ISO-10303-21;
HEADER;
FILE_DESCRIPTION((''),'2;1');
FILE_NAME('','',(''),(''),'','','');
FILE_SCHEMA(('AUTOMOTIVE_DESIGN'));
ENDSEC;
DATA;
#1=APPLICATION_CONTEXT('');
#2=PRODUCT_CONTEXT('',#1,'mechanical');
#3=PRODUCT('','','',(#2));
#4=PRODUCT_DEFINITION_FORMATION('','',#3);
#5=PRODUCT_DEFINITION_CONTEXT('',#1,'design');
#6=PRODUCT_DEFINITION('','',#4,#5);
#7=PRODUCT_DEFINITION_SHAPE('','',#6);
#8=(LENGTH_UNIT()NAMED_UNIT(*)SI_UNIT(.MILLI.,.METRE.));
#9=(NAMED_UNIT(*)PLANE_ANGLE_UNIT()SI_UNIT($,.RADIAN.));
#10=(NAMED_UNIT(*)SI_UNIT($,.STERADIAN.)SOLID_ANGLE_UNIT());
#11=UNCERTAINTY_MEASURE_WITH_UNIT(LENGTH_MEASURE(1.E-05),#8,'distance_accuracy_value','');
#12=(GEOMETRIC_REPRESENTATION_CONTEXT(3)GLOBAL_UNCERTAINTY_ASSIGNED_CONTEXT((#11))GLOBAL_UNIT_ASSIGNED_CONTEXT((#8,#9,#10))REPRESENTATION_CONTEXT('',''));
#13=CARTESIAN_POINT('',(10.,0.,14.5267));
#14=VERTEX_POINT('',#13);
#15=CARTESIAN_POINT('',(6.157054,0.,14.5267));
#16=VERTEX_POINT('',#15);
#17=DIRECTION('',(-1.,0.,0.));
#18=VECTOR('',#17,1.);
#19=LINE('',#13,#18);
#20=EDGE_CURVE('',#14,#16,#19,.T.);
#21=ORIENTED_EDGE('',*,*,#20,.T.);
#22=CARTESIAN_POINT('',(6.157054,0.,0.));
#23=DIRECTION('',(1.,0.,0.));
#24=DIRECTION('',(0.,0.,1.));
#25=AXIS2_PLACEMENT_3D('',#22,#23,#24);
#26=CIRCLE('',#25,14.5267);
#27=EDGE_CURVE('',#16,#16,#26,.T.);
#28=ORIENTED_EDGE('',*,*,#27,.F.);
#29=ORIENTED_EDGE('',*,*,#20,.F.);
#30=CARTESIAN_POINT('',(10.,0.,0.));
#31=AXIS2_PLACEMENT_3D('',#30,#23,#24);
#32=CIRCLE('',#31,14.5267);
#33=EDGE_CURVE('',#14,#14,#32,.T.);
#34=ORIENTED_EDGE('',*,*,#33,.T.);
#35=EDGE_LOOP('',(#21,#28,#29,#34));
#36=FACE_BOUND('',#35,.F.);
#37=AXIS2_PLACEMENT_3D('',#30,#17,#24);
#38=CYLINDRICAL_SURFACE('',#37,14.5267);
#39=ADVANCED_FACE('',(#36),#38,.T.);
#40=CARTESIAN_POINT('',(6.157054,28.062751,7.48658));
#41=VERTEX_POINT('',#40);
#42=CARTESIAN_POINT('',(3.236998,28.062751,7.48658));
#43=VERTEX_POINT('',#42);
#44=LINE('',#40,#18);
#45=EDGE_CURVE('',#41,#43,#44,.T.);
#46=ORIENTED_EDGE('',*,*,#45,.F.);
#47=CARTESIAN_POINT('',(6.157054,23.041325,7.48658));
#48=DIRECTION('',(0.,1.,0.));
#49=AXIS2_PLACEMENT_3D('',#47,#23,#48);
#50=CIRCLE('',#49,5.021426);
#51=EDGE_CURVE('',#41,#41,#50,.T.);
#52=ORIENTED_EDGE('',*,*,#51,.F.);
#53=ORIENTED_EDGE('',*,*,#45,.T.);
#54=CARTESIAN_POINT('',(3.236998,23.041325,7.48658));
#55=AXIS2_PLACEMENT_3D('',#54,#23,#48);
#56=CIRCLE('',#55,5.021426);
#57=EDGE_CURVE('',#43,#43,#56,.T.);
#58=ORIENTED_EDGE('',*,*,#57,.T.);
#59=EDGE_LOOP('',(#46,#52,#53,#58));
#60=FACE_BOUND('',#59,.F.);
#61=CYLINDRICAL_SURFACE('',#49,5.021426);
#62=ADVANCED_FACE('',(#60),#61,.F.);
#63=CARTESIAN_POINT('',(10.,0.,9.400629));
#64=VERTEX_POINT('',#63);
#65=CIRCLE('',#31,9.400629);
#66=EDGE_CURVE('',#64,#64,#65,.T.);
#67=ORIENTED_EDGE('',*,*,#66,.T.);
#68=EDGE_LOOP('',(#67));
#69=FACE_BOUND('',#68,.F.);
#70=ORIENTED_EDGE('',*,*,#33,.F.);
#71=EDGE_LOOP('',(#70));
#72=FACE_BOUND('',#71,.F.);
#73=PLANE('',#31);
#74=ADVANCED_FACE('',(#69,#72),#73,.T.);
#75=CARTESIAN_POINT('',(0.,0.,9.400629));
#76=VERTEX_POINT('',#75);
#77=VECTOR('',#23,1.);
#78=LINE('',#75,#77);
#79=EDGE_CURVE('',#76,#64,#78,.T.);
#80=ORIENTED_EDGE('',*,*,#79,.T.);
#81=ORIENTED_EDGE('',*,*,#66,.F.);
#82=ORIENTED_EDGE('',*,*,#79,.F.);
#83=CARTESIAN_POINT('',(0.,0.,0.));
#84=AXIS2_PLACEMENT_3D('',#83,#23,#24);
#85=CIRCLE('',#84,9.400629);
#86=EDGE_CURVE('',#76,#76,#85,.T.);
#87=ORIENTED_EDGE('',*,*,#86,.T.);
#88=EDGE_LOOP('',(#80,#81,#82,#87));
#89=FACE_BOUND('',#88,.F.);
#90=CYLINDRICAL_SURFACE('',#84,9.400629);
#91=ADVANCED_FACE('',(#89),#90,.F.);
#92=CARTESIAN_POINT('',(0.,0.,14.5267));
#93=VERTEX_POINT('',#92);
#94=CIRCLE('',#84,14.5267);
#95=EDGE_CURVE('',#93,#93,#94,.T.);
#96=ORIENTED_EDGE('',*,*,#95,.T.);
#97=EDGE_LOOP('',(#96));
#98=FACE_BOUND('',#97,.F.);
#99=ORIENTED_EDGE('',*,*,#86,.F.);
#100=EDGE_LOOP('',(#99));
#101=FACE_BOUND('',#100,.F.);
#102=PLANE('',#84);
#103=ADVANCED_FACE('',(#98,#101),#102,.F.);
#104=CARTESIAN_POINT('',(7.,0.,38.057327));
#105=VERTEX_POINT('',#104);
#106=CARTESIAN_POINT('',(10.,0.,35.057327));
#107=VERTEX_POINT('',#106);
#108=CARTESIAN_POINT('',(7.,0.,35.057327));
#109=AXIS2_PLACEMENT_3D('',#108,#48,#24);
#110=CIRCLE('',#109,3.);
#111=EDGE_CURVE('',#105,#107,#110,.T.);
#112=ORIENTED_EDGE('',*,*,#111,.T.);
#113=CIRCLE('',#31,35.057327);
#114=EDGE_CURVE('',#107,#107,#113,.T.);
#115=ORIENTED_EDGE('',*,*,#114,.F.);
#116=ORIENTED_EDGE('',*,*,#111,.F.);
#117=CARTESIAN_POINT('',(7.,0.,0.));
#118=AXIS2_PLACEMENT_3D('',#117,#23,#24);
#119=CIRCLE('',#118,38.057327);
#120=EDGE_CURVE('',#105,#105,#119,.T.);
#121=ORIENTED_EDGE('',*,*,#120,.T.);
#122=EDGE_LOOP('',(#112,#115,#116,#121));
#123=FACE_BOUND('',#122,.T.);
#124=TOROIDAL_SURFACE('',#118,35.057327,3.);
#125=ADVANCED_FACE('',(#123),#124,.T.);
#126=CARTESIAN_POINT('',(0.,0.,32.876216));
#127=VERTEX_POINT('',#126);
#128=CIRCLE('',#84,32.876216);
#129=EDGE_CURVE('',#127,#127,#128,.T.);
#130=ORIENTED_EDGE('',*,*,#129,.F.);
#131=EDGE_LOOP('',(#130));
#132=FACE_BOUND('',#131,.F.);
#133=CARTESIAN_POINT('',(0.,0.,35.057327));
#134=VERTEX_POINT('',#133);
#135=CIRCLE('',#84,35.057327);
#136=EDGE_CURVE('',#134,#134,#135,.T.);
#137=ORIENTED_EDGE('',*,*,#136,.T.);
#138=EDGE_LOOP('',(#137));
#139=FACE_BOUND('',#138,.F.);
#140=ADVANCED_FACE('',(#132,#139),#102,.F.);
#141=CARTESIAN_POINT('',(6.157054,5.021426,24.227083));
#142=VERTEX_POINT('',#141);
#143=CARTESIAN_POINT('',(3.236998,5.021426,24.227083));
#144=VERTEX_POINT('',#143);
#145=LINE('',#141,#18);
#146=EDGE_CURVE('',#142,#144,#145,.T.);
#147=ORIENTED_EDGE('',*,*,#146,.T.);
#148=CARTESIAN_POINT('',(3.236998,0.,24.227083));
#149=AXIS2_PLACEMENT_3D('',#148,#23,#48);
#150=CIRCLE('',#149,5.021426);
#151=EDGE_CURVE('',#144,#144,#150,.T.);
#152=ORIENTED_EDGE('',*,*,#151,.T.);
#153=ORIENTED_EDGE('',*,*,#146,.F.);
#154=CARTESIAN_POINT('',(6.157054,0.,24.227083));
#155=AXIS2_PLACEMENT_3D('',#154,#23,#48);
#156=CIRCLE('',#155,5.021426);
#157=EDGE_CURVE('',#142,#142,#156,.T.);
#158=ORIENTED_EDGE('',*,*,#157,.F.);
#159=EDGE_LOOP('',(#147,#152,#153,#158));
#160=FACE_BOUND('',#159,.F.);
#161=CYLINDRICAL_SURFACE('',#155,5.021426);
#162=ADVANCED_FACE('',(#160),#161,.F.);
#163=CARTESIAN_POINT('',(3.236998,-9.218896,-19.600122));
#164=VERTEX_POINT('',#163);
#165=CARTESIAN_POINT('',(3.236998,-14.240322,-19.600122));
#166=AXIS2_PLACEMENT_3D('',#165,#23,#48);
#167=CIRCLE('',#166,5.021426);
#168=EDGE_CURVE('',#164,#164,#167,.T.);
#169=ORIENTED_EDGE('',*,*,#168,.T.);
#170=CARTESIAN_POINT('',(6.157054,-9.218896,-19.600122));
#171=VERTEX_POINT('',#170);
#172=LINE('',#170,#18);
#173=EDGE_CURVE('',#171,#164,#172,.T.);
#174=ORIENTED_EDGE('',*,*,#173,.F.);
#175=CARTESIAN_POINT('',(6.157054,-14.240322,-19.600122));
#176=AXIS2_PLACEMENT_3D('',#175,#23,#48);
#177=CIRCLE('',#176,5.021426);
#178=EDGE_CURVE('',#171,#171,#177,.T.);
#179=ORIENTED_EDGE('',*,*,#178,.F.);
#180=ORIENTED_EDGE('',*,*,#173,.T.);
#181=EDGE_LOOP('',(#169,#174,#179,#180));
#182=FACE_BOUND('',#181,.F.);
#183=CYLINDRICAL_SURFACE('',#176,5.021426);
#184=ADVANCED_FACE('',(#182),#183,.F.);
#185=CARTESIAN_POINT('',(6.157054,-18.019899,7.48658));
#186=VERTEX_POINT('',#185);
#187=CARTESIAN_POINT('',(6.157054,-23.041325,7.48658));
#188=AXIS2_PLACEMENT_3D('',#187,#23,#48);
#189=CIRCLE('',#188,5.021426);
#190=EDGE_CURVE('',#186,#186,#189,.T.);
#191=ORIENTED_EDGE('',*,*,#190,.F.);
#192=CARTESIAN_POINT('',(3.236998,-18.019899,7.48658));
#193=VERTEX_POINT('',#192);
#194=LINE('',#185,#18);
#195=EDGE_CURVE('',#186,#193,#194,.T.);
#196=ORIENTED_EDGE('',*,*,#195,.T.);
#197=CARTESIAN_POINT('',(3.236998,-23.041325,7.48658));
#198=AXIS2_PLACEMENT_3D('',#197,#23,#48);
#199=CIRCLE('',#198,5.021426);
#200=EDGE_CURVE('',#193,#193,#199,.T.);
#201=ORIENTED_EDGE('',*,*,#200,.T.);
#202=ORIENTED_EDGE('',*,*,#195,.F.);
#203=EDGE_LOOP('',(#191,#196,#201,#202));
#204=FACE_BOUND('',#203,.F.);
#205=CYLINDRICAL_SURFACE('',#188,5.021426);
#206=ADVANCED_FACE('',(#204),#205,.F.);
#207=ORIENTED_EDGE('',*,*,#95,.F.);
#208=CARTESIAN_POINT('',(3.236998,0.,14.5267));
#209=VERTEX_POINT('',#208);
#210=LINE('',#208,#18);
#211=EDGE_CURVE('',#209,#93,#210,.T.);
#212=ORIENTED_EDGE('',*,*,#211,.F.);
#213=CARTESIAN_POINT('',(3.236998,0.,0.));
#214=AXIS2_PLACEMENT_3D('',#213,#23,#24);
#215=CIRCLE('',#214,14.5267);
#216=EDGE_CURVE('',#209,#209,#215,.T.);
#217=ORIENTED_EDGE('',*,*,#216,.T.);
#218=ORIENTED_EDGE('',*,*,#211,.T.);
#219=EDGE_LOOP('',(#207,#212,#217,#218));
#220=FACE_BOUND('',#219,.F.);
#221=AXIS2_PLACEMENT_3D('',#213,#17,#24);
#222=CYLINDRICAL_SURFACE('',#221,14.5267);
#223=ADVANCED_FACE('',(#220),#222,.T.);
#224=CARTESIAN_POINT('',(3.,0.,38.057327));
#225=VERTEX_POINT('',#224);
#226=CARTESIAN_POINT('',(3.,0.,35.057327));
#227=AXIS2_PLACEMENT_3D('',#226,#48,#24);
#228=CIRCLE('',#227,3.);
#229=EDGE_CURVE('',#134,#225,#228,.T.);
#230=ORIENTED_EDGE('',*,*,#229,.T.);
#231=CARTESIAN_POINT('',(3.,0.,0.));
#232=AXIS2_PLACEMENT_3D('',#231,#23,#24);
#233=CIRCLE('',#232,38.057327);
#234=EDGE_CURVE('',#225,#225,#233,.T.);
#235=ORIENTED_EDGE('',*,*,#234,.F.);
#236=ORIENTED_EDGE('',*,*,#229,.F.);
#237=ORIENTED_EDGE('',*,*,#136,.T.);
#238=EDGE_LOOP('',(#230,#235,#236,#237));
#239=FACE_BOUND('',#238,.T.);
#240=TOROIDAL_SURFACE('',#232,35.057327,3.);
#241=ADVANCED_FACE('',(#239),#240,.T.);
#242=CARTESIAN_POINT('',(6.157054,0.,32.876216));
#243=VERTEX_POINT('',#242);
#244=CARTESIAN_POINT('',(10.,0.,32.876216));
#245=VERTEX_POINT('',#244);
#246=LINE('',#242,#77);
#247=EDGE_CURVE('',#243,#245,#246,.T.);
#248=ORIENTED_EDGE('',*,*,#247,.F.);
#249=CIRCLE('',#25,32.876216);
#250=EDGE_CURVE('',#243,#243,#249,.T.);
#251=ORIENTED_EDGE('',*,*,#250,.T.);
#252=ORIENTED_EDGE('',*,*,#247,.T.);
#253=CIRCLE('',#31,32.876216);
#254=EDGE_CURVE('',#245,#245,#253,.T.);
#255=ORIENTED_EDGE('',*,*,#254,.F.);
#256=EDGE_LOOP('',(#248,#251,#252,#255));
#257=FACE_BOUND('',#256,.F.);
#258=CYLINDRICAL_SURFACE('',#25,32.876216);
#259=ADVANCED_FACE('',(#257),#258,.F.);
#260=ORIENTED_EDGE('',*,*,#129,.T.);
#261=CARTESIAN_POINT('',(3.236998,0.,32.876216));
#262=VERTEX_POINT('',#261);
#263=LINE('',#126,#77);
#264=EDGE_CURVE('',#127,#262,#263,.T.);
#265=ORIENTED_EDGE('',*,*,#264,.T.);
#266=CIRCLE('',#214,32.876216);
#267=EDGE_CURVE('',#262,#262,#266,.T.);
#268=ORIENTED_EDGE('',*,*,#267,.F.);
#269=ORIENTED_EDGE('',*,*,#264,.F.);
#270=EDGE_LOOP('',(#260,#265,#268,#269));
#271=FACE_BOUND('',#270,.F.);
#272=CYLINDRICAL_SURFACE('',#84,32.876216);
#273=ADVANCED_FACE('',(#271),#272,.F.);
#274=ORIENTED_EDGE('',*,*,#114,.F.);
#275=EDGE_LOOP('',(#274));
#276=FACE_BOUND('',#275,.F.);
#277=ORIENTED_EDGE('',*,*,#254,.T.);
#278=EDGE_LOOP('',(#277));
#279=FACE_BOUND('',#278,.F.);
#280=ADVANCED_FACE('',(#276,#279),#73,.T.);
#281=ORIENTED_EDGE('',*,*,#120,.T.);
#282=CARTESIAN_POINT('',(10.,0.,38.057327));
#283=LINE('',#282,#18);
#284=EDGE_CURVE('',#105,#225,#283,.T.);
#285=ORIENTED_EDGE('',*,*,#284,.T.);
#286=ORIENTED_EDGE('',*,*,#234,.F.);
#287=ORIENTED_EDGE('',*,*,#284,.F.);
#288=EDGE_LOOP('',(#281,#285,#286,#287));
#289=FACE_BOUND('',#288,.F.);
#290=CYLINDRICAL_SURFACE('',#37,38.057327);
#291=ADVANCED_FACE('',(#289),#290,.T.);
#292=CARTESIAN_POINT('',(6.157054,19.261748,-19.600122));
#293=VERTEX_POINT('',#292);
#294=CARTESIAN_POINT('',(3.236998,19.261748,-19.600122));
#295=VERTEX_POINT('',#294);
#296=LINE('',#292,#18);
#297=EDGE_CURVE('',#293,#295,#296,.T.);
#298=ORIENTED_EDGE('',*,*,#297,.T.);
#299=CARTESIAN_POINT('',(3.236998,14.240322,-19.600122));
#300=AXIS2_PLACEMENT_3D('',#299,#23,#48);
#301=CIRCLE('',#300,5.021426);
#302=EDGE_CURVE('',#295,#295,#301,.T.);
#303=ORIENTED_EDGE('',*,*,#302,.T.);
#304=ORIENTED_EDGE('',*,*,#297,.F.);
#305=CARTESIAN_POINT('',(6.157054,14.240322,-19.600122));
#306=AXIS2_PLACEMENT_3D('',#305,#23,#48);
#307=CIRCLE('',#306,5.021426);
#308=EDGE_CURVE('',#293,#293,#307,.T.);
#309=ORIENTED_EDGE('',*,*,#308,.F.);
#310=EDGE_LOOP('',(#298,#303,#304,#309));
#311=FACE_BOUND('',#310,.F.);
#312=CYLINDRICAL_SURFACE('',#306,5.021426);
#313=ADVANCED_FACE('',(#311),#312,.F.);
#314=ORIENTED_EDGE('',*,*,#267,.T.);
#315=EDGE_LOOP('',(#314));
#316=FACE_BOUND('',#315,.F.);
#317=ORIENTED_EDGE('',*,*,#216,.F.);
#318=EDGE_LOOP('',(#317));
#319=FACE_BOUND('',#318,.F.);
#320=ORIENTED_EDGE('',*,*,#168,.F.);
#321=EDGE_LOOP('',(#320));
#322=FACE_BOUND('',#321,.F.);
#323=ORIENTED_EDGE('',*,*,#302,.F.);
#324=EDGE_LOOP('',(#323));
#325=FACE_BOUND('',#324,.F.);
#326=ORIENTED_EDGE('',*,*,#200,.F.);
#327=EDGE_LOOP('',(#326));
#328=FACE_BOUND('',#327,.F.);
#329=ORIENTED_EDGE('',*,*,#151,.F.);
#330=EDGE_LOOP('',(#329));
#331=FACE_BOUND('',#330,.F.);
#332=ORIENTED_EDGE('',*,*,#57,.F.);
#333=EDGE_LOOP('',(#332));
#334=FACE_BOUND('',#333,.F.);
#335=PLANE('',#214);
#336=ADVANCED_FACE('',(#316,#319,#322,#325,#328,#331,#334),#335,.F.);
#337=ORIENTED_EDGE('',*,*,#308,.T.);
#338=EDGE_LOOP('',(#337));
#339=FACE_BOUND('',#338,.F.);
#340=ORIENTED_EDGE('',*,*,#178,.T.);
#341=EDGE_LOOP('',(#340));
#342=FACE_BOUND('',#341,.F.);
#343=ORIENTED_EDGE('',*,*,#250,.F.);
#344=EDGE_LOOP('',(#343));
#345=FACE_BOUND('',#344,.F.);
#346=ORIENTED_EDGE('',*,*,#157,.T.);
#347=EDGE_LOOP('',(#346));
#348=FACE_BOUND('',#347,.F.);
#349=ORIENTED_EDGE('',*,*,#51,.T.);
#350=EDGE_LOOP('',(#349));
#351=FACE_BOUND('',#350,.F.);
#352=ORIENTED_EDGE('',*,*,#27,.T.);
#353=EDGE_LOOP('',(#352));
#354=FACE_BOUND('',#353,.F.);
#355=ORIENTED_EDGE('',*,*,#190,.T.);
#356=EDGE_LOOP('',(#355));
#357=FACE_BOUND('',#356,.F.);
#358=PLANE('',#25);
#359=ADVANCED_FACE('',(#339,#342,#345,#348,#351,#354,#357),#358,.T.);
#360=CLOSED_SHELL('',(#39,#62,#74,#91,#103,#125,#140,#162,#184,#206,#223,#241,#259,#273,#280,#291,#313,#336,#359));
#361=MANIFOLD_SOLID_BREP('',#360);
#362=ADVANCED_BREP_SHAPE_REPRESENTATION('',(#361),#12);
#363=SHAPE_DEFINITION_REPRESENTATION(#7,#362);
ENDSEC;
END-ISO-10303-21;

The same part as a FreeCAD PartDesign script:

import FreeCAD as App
import Part
import Sketcher
from FreeCAD import Vector
Q = App.Units.Quantity


def edges_at(feature, points):
    """Names of the edges that pass closest to the given points."""
    edges = feature.Shape.Edges
    near = lambda p: min(range(len(edges)), key=lambda i: edges[i].distToShape(Part.Vertex(*p))[0])
    return sorted({f"Edge{near(p) + 1}" for p in points})

doc = App.newDocument("Part")
body = doc.addObject("PartDesign::Body", "Body")

sketch1 = body.newObject("Sketcher::SketchObject", "Sketch")
sketch1.AttachmentSupport = (doc.getObject("XZ_Plane"), [""])
sketch1.MapMode = "FlatFace"
sketch1.addGeometry([
    Part.LineSegment(Vector(0, 14.5, 0), Vector(0, 9.4, 0)),
    Part.LineSegment(Vector(0, 9.4, 0), Vector(10, 9.4, 0)),
    Part.LineSegment(Vector(10, 9.4, 0), Vector(10, 14.5, 0)),
    Part.LineSegment(Vector(10, 14.5, 0), Vector(6.2, 14.5, 0)),
    Part.LineSegment(Vector(6.2, 14.5, 0), Vector(6.2, 32.9, 0)),
    Part.LineSegment(Vector(6.2, 32.9, 0), Vector(10, 32.9, 0)),
    Part.LineSegment(Vector(10, 32.9, 0), Vector(10, 38.1, 0)),
    Part.LineSegment(Vector(10, 38.1, 0), Vector(0, 38.1, 0)),
    Part.LineSegment(Vector(0, 38.1, 0), Vector(0, 32.9, 0)),
    Part.LineSegment(Vector(0, 32.9, 0), Vector(3.2, 32.9, 0)),
    Part.LineSegment(Vector(3.2, 32.9, 0), Vector(3.2, 14.5, 0)),
    Part.LineSegment(Vector(3.2, 14.5, 0), Vector(0, 14.5, 0)),
], False)
sketch1.addConstraint([
    Sketcher.Constraint("Coincident", 0, 2, 1, 1),
    Sketcher.Constraint("Coincident", 1, 2, 2, 1),
    Sketcher.Constraint("Coincident", 2, 2, 3, 1),
    Sketcher.Constraint("Coincident", 3, 2, 4, 1),
    Sketcher.Constraint("Coincident", 4, 2, 5, 1),
    Sketcher.Constraint("Coincident", 5, 2, 6, 1),
    Sketcher.Constraint("Coincident", 6, 2, 7, 1),
    Sketcher.Constraint("Coincident", 7, 2, 8, 1),
    Sketcher.Constraint("Coincident", 8, 2, 9, 1),
    Sketcher.Constraint("Coincident", 9, 2, 10, 1),
    Sketcher.Constraint("Coincident", 10, 2, 11, 1),
    Sketcher.Constraint("Coincident", 11, 2, 0, 1),
    Sketcher.Constraint("Vertical", 0),
    Sketcher.Constraint("Horizontal", 1),
    Sketcher.Constraint("Vertical", 2),
    Sketcher.Constraint("Horizontal", 3),
    Sketcher.Constraint("Vertical", 4),
    Sketcher.Constraint("Horizontal", 5),
    Sketcher.Constraint("Vertical", 6),
    Sketcher.Constraint("Horizontal", 7),
    Sketcher.Constraint("Vertical", 8),
    Sketcher.Constraint("Horizontal", 9),
    Sketcher.Constraint("Vertical", 10),
    Sketcher.Constraint("Horizontal", 11),
    Sketcher.Constraint("PointOnObject", 0, 2, -2),
    Sketcher.Constraint("PointOnObject", 7, 2, -2),
    Sketcher.Constraint("Horizontal", 5, 2, 8, 2),
    Sketcher.Constraint("Horizontal", 3, 2, 10, 2),
    Sketcher.Constraint("Vertical", 2, 2, 5, 2),
    Sketcher.Constraint("DistanceX", 1, 1, 1, 2, Q("10 mm")),
    Sketcher.Constraint("DistanceY", 0, 2, 0, 1, Q("5.126071 mm")),
    Sketcher.Constraint("DistanceY", 6, 1, 6, 2, Q("5.181111 mm")),
    Sketcher.Constraint("DistanceY", -1, 1, 2, 2, Q("14.5267 mm")),
    Sketcher.Constraint("DistanceX", 3, 2, 3, 1, Q("3.842946 mm")),
    Sketcher.Constraint("DistanceX", 9, 1, 9, 2, Q("3.236998 mm")),
    Sketcher.Constraint("DistanceY", 4, 1, 4, 2, Q("18.349516 mm")),
])
revolution = body.newObject("PartDesign::Revolution", "Revolution")
revolution.Profile = sketch1
revolution.ReferenceAxis = (sketch1, ["H_Axis"])
revolution.Angle = 360

sketch2 = body.newObject("Sketcher::SketchObject", "Sketch001")
sketch2.AttachmentSupport = (doc.getObject("YZ_Plane"), [""])
sketch2.MapMode = "FlatFace"
sketch2.AttachmentOffset = App.Placement(Vector(0, 0, 6.157054), App.Rotation())
sketch2.addGeometry([
    Part.Circle(Vector(-23, 7, 0), Vector(0, 0, 1), 5),
    Part.Circle(Vector(0, 24, 0), Vector(0, 0, 1), 5),
    Part.Circle(Vector(23, 7, 0), Vector(0, 0, 1), 5),
    Part.Circle(Vector(14, -20, 0), Vector(0, 0, 1), 5),
    Part.Circle(Vector(-14, -20, 0), Vector(0, 0, 1), 5),
], False)
sketch2.addConstraint([
    Sketcher.Constraint("Equal", 0, 1),
    Sketcher.Constraint("Equal", 1, 2),
    Sketcher.Constraint("Equal", 2, 3),
    Sketcher.Constraint("Equal", 3, 4),
    Sketcher.Constraint("Symmetric", 0, 3, 2, 3, -2),
    Sketcher.Constraint("Symmetric", 3, 3, 4, 3, -2),
    Sketcher.Constraint("PointOnObject", 1, 3, -2),
    Sketcher.Constraint("Diameter", 0, Q("10.042852 mm")),
    Sketcher.Constraint("DistanceY", 3, 3, 2, 3, Q("27.086702 mm")),
    Sketcher.Constraint("DistanceY", -1, 1, 0, 3, Q("7.48658 mm")),
    Sketcher.Constraint("DistanceX", 0, 3, 2, 3, Q("46.08265 mm")),
    Sketcher.Constraint("DistanceY", -1, 1, 1, 3, Q("24.227083 mm")),
    Sketcher.Constraint("DistanceX", -1, 1, 3, 3, Q("14.240322 mm")),
])
pocket1 = body.newObject("PartDesign::Pocket", "Pocket")
pocket1.Profile = sketch2
pocket1.Length = 25
doc.recompute()

fillet = body.newObject("PartDesign::Fillet", "Fillet")
fillet.Base = (pocket1, edges_at(pocket1, [(0, 0, -38.057), (10, 0, -38.057)]))
fillet.Radius = 3

doc.recompute()
